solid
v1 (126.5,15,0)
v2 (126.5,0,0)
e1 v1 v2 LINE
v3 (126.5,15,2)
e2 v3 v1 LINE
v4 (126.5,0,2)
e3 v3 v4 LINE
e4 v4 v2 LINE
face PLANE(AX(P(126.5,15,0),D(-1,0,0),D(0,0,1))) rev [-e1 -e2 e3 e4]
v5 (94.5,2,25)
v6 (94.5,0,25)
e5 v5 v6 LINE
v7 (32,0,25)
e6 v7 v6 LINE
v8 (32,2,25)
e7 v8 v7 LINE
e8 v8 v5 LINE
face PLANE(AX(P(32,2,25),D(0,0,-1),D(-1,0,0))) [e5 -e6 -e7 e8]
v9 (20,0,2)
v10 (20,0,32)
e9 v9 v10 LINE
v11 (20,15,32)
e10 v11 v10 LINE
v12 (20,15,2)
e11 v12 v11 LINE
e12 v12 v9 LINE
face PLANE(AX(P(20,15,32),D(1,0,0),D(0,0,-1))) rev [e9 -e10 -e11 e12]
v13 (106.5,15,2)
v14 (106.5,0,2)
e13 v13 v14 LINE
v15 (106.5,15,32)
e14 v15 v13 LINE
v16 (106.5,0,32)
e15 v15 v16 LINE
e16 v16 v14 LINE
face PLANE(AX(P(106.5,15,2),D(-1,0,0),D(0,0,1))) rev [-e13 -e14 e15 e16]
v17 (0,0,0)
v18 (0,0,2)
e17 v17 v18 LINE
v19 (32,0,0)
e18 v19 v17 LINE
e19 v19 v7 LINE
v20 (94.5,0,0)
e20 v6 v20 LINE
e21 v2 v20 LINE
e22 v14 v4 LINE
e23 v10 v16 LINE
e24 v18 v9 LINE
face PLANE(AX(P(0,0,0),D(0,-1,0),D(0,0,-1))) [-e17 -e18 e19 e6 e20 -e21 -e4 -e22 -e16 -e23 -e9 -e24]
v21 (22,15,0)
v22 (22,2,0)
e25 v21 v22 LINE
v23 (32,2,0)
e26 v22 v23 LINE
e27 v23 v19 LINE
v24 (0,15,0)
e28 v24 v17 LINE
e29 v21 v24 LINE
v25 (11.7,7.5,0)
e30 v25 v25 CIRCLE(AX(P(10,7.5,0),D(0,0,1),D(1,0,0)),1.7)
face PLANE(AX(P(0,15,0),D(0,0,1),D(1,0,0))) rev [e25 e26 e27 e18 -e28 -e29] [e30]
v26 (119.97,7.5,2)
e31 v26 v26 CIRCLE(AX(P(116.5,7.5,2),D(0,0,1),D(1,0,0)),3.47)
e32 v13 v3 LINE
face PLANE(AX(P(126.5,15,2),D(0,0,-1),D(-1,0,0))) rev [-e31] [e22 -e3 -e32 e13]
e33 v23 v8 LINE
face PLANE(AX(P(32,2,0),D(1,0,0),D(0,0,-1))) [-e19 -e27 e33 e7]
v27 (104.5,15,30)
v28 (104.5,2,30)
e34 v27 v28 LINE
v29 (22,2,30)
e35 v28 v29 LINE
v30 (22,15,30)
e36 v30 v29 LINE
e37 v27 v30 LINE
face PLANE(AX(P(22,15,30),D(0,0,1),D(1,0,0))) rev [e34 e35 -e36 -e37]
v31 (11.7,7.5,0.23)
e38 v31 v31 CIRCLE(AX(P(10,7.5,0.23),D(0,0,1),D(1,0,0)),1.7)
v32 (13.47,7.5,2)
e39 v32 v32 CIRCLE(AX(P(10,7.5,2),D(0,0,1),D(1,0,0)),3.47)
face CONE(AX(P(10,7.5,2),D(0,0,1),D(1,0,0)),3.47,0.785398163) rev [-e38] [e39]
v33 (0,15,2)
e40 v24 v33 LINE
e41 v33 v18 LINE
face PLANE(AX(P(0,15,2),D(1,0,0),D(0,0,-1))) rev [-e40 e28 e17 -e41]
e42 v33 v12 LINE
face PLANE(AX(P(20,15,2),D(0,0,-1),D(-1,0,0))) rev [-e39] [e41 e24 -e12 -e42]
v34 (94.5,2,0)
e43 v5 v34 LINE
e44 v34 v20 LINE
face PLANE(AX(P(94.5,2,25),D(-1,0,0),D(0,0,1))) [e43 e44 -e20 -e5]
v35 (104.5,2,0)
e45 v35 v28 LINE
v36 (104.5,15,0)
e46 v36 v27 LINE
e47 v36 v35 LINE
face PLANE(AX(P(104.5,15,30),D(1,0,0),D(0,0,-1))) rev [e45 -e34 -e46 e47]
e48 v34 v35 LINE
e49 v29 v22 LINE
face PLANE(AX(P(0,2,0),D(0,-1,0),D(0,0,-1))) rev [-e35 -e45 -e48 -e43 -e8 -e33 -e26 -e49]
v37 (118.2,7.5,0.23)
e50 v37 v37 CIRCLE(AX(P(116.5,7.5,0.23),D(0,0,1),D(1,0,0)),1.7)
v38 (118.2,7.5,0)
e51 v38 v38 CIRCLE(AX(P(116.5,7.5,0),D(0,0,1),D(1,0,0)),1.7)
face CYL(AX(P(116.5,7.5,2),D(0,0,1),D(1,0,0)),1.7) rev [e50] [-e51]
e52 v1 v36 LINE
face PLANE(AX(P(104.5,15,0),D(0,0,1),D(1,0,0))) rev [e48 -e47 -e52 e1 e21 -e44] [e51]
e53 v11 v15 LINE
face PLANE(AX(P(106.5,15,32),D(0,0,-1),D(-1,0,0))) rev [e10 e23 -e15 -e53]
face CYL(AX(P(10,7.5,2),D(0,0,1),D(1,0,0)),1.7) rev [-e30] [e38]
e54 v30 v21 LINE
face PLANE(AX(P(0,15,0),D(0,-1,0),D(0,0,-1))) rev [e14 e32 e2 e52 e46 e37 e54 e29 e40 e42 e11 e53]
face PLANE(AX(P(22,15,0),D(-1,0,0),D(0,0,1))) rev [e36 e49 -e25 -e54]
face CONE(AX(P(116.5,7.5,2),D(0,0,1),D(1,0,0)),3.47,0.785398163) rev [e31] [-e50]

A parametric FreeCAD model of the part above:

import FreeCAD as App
import Part
import Sketcher
Q = App.Units.Quantity

doc = App.newDocument("Part")
body = doc.addObject("PartDesign::Body", "Body")

# Sketch on XZ plane
sketch1 = body.newObject("Sketcher::SketchObject", "Sketch")
sketch1.AttachmentSupport = (doc.getObject("XZ_Plane"), [""])
sketch1.MapMode = "FlatFace"
sketch1.addGeometry([
    Part.LineSegment(App.Vector(22, 0, 0), App.Vector(0, 0, 0)),  # 0
    Part.LineSegment(App.Vector(0, 0, 0), App.Vector(0, 2, 0)),  # 1
    Part.LineSegment(App.Vector(0, 2, 0), App.Vector(20, 2, 0)),  # 2
    Part.LineSegment(App.Vector(20, 2, 0), App.Vector(20, 32, 0)),  # 3
    Part.LineSegment(App.Vector(20, 32, 0), App.Vector(106.5, 32, 0)),  # 4
    Part.LineSegment(App.Vector(106.5, 32, 0), App.Vector(106.5, 2, 0)),  # 5
    Part.LineSegment(App.Vector(106.5, 2, 0), App.Vector(126.5, 2, 0)),  # 6
    Part.LineSegment(App.Vector(126.5, 2, 0), App.Vector(126.5, 0, 0)),  # 7
    Part.LineSegment(App.Vector(126.5, 0, 0), App.Vector(104.5, 0, 0)),  # 8
    Part.LineSegment(App.Vector(104.5, 0, 0), App.Vector(104.5, 30, 0)),  # 9
    Part.LineSegment(App.Vector(104.5, 30, 0), App.Vector(22, 30, 0)),  # 10
    Part.LineSegment(App.Vector(22, 30, 0), App.Vector(22, 0, 0)),  # 11
], False)
sketch1.addConstraint([
    Sketcher.Constraint("Coincident", 0, 2, 1, 1),
    Sketcher.Constraint("Coincident", 1, 2, 2, 1),
    Sketcher.Constraint("Coincident", 2, 2, 3, 1),
    Sketcher.Constraint("Coincident", 3, 2, 4, 1),
    Sketcher.Constraint("Coincident", 4, 2, 5, 1),
    Sketcher.Constraint("Coincident", 5, 2, 6, 1),
    Sketcher.Constraint("Coincident", 6, 2, 7, 1),
    Sketcher.Constraint("Coincident", 7, 2, 8, 1),
    Sketcher.Constraint("Coincident", 8, 2, 9, 1),
    Sketcher.Constraint("Coincident", 9, 2, 10, 1),
    Sketcher.Constraint("Coincident", 10, 2, 11, 1),
    Sketcher.Constraint("Coincident", 11, 2, 0, 1),
    Sketcher.Constraint("Horizontal", 0),
    Sketcher.Constraint("Vertical", 1),
    Sketcher.Constraint("Horizontal", 2),
    Sketcher.Constraint("Vertical", 3),
    Sketcher.Constraint("Horizontal", 4),
    Sketcher.Constraint("Vertical", 5),
    Sketcher.Constraint("Horizontal", 6),
    Sketcher.Constraint("Vertical", 7),
    Sketcher.Constraint("Horizontal", 8),
    Sketcher.Constraint("Vertical", 9),
    Sketcher.Constraint("Horizontal", 10),
    Sketcher.Constraint("Vertical", 11),
    Sketcher.Constraint("Coincident", 0, 2, -1, 1),
    Sketcher.Constraint("PointOnObject", 7, 2, -1),
    Sketcher.Constraint("Horizontal", 2, 2, 5, 2),
    Sketcher.Constraint("Equal", 2, 6),
    Sketcher.Constraint("Equal", 0, 8),
    Sketcher.Constraint("Equal", 5, 9),
    Sketcher.Constraint("DistanceX", 0, 2, 0, 1, Q("22 mm")),
    Sketcher.Constraint("DistanceX", 2, 1, 2, 2, Q("20 mm")),
    Sketcher.Constraint("DistanceY", 1, 1, 1, 2, Q("2 mm")),
    Sketcher.Constraint("DistanceY", 3, 1, 3, 2, Q("30 mm")),
    Sketcher.Constraint("DistanceX", 4, 1, 4, 2, Q("86.5 mm")),
])
pad1 = body.newObject("PartDesign::Pad", "Pad")
pad1.Profile = sketch1
pad1.Length = 15
pad1.Reversed = True

# Sketch on XZ plane
sketch2 = body.newObject("Sketcher::SketchObject", "Sketch001")
sketch2.AttachmentSupport = (doc.getObject("XZ_Plane"), [""])
sketch2.MapMode = "FlatFace"
sketch2.addGeometry([
    Part.LineSegment(App.Vector(22, 0, 0), App.Vector(32, 0, 0)),  # 0
    Part.LineSegment(App.Vector(32, 0, 0), App.Vector(32, 25, 0)),  # 1
    Part.LineSegment(App.Vector(32, 25, 0), App.Vector(94.5, 25, 0)),  # 2
    Part.LineSegment(App.Vector(94.5, 25, 0), App.Vector(94.5, 0, 0)),  # 3
    Part.LineSegment(App.Vector(94.5, 0, 0), App.Vector(104.5, 0, 0)),  # 4
    Part.LineSegment(App.Vector(104.5, 0, 0), App.Vector(104.5, 30, 0)),  # 5
    Part.LineSegment(App.Vector(104.5, 30, 0), App.Vector(22, 30, 0)),  # 6
    Part.LineSegment(App.Vector(22, 30, 0), App.Vector(22, 0, 0)),  # 7
], False)
sketch2.addConstraint([
    Sketcher.Constraint("Coincident", 0, 2, 1, 1),
    Sketcher.Constraint("Coincident", 1, 2, 2, 1),
    Sketcher.Constraint("Coincident", 2, 2, 3, 1),
    Sketcher.Constraint("Coincident", 3, 2, 4, 1),
    Sketcher.Constraint("Coincident", 4, 2, 5, 1),
    Sketcher.Constraint("Coincident", 5, 2, 6, 1),
    Sketcher.Constraint("Coincident", 6, 2, 7, 1),
    Sketcher.Constraint("Coincident", 7, 2, 0, 1),
    Sketcher.Constraint("Horizontal", 0),
    Sketcher.Constraint("Vertical", 1),
    Sketcher.Constraint("Horizontal", 2),
    Sketcher.Constraint("Vertical", 3),
    Sketcher.Constraint("Horizontal", 4),
    Sketcher.Constraint("Vertical", 5),
    Sketcher.Constraint("Horizontal", 6),
    Sketcher.Constraint("Vertical", 7),
    Sketcher.Constraint("PointOnObject", 0, 2, -1),
    Sketcher.Constraint("PointOnObject", 3, 2, -1),
    Sketcher.Constraint("Equal", 0, 4),
    Sketcher.Constraint("DistanceX", 0, 1, 0, 2, Q("10 mm")),
    Sketcher.Constraint("DistanceY", 1, 1, 1, 2, Q("25 mm")),
    Sketcher.Constraint("DistanceY", 5, 1, 5, 2, Q("30 mm")),
    Sketcher.Constraint("DistanceX", 2, 1, 2, 2, Q("62.5 mm")),
    Sketcher.Constraint("DistanceX", -1, 1, 0, 2, Q("32 mm")),
])
pad2 = body.newObject("PartDesign::Pad", "Pad001")
pad2.Profile = sketch2
pad2.Length = 2
pad2.Reversed = True

# Sketch on XY plane
sketch3 = body.newObject("Sketcher::SketchObject", "Sketch002")
sketch3.AttachmentSupport = (doc.getObject("XY_Plane"), [""])
sketch3.MapMode = "FlatFace"
sketch3.AttachmentOffset = App.Placement(App.Vector(0, 0, 2), App.Rotation())
sketch3.addGeometry([
    Part.Circle(App.Vector(10, 7.5, 0), App.Vector(0, 0, 1), 1.7),
    Part.Circle(App.Vector(116.5, 7.5, 0), App.Vector(0, 0, 1), 1.7),
], False)
sketch3.addConstraint([
    Sketcher.Constraint("Equal", 0, 1),
    Sketcher.Constraint("Horizontal", 0, 3, 1, 3),
    Sketcher.Constraint("Diameter", 0, Q("3.4 mm")),
    Sketcher.Constraint("DistanceX", -1, 1, 0, 3, Q("10 mm")),
    Sketcher.Constraint("DistanceY", -1, 1, 0, 3, Q("7.5 mm")),
    Sketcher.Constraint("DistanceX", -1, 1, 1, 3, Q("116.5 mm")),
])
doc.recompute()
hole = body.newObject("PartDesign::Hole", "Hole")
hole.Profile = sketch3
hole.ThreadType = "None"
hole.Diameter = 3.4
hole.DepthType = "Dimension"
hole.Depth = 10
hole.DrillPoint = "Angled"
hole.DrillPointAngle = 118
hole.HoleCutType = "Countersink"
hole.HoleCutDiameter = 6.94
hole.HoleCutCountersinkAngle = 90

doc.recompute()
